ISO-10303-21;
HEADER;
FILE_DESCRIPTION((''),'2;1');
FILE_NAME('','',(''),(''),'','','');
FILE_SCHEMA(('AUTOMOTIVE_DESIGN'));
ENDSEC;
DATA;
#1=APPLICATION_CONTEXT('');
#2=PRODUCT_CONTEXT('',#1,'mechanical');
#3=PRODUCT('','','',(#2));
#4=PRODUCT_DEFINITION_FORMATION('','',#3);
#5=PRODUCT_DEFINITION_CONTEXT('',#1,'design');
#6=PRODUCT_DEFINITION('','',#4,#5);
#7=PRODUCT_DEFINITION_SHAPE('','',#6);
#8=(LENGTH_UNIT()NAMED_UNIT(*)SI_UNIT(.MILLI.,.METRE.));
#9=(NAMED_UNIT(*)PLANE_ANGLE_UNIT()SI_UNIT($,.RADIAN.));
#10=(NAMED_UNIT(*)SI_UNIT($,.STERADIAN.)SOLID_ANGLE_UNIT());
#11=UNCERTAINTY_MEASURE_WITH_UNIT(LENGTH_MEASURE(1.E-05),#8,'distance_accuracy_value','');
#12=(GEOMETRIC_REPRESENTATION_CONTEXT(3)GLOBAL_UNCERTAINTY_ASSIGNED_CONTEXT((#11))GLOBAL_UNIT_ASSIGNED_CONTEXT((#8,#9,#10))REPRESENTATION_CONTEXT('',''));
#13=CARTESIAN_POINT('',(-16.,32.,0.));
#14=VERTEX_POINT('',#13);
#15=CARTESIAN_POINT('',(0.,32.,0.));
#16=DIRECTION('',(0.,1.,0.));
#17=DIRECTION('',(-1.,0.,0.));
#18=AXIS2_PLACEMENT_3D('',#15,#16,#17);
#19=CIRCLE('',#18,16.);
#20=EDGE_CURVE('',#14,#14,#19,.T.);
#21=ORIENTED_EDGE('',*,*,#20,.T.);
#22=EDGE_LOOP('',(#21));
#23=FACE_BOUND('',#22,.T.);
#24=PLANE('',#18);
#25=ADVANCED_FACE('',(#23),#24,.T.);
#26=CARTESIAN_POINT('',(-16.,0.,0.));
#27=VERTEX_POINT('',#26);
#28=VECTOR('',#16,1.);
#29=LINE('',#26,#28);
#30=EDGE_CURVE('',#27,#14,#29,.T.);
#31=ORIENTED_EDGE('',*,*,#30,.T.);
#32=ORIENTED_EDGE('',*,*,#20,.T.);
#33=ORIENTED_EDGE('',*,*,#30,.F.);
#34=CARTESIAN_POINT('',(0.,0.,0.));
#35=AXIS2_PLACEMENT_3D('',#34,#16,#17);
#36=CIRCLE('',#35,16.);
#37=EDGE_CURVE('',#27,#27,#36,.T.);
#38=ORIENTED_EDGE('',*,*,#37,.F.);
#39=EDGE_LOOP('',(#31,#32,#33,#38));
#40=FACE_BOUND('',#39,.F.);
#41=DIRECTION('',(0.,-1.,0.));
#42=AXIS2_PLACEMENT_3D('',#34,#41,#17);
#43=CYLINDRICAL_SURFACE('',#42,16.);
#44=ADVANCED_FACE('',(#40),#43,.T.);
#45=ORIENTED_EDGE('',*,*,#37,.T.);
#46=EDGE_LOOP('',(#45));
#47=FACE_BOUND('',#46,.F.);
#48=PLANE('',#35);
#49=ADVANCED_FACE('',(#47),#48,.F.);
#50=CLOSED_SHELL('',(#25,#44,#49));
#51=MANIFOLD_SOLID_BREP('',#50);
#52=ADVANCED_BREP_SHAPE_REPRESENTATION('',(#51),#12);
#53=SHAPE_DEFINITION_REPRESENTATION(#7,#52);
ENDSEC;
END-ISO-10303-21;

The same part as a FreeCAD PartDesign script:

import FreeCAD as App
import Part
import Sketcher
from FreeCAD import Vector
Q = App.Units.Quantity

doc = App.newDocument("Part")
body = doc.addObject("PartDesign::Body", "Body")

sketch1 = doc.addObject("Sketcher::SketchObject", "Sketch")
body.addObject(sketch1)
sketch1.AttachmentSupport = (doc.XZ_Plane, [""])
sketch1.MapMode = "FlatFace"
sketch1.addGeometry(Part.Circle(Vector(0, 0, 0), Vector(0, 0, 1), 16), False)
sketch1.addConstraint(Sketcher.Constraint("Coincident", 0, 3, -1, 1))
sketch1.addConstraint(Sketcher.Constraint("Diameter", 0, Q("32 mm")))
pad1 = doc.addObject("PartDesign::Pad", "Pad")
body.addObject(pad1)
pad1.Profile = sketch1
pad1.Length = 32
pad1.Reversed = True

doc.recompute()
